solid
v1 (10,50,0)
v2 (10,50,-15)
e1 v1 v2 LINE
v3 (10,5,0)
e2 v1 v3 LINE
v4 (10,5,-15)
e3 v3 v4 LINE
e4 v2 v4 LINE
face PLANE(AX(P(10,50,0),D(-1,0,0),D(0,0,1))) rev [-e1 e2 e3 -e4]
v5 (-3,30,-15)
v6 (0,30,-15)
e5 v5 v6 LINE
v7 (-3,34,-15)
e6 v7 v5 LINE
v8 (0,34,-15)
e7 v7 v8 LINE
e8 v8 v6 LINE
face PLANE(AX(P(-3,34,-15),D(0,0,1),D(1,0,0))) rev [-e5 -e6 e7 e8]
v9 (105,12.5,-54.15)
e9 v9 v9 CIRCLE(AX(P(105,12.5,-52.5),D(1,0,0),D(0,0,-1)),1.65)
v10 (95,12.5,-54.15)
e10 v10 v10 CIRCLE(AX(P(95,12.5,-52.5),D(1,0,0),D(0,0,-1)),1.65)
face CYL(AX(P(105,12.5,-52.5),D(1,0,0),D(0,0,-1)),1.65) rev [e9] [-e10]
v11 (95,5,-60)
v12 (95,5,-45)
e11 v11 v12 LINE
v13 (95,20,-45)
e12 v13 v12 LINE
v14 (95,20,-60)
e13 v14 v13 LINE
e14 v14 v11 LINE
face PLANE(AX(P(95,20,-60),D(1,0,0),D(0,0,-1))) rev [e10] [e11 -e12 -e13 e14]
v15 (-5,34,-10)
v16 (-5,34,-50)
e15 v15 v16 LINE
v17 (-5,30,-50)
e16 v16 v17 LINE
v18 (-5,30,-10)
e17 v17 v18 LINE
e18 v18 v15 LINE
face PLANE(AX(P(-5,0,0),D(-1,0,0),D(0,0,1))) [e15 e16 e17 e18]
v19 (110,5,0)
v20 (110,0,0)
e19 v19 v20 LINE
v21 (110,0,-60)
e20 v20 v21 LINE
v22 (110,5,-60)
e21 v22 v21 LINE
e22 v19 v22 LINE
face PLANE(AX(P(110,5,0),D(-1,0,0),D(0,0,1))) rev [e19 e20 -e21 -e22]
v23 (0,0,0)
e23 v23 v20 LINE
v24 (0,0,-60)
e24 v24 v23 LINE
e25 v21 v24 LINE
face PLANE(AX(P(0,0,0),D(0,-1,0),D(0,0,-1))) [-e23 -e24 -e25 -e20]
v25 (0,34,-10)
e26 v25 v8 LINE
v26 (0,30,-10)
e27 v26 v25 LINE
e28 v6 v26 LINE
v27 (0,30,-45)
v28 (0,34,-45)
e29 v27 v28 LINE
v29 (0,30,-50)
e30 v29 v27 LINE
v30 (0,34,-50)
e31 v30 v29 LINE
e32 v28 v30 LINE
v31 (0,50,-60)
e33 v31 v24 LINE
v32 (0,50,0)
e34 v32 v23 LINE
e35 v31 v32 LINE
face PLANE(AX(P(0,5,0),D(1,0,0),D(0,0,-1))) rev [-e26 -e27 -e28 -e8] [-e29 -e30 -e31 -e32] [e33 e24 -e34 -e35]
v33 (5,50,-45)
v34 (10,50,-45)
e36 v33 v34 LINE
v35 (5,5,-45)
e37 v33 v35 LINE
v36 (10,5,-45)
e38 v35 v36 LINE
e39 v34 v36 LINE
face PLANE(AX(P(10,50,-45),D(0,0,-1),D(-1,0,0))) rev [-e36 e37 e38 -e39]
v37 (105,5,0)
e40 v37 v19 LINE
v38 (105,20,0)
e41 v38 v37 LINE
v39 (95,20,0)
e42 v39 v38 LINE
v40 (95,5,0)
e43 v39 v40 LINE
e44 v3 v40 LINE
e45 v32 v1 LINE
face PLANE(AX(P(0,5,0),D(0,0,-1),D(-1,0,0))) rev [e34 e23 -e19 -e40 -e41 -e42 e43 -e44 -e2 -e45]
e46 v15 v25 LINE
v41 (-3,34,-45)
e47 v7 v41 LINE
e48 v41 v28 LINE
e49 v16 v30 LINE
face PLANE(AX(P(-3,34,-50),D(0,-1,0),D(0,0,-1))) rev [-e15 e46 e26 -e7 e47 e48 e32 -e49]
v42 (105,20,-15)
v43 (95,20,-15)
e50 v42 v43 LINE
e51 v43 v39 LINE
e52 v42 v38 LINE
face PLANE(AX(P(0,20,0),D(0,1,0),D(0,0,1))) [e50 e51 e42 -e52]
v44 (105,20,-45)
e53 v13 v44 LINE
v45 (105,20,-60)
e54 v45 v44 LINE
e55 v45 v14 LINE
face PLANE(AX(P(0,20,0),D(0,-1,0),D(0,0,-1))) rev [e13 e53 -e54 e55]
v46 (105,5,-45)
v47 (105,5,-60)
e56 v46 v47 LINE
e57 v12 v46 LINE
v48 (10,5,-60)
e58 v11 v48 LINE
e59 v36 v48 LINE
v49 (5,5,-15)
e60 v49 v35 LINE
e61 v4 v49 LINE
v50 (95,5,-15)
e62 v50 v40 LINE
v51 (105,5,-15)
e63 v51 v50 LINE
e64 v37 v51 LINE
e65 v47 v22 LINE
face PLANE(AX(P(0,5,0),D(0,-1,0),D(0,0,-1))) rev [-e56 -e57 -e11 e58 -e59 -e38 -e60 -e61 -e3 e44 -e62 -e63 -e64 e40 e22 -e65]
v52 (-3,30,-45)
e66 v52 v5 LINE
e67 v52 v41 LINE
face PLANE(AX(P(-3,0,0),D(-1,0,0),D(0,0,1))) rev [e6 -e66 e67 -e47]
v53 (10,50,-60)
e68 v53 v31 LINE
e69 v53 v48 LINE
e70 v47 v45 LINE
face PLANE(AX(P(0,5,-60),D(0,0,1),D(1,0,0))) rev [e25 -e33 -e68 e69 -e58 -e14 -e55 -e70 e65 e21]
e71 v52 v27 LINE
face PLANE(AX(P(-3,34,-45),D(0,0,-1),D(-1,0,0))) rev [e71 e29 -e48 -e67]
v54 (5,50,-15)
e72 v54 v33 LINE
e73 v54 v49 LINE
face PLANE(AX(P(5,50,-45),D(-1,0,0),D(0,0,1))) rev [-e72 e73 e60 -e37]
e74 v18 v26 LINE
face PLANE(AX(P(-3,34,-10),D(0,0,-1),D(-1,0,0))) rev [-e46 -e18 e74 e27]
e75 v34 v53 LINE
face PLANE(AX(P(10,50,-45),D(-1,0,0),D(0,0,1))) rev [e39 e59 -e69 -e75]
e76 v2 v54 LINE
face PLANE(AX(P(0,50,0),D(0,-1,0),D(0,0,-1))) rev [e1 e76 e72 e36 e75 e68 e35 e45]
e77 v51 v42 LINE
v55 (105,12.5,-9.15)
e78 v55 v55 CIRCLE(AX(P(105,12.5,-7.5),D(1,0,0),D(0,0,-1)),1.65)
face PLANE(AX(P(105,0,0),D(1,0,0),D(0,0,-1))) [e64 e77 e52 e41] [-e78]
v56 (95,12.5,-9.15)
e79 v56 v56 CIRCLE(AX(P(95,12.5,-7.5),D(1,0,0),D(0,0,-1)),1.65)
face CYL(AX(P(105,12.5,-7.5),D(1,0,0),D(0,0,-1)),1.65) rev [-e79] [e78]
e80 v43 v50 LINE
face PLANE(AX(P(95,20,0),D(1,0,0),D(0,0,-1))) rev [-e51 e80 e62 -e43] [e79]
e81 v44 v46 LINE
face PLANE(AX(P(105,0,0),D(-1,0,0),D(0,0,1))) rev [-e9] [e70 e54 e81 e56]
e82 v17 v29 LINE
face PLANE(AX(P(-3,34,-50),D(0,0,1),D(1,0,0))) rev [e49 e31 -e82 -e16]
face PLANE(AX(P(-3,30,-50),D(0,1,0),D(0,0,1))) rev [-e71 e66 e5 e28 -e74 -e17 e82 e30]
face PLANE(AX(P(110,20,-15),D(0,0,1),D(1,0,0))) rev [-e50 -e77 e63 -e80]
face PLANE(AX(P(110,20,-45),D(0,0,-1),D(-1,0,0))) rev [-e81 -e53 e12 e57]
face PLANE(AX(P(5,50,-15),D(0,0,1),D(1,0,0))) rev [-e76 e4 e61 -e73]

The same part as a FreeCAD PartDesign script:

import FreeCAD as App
import Part
import Sketcher
from FreeCAD import Vector

doc = App.newDocument("Part")
params = doc.addObject("Spreadsheet::Sheet", "Params")
for row, (alias, value) in enumerate([
    ("sketch1_width", "110 mm"),
    ("sketch1_height", "60 mm"),
    ("pad1_length", "5 mm"),
    ("sketch2_width", "10 mm"),
    ("sketch2_width2", "5 mm"),
    ("sketch2_height", "15 mm"),
    ("sketch2_height2", "30 mm"),
    ("pad2_length", "45 mm"),
    ("sketch3_width", "15 mm"),
    ("pad3_length", "15 mm"),
    ("sketch4_width", "15 mm"),
    ("pocket1_length", "5 mm"),
    ("sketch5_diameter", "3.3 mm"),
    ("hole_diameter", "3.3 mm"),
    ("hole_depth", "14.00858 mm"),
    ("sketch6_width", "4 mm"),
    ("sketch6_height", "5 mm"),
    ("pad4_length", "3 mm"),
    ("sketch7_width", "4 mm"),
    ("sketch7_height", "40 mm"),
    ("pad5_length", "2 mm"),
], start=1):
    params.set(f"A{row}", alias)
    params.set(f"B{row}", "=" + value)
    params.setAlias(f"B{row}", alias)

body = doc.addObject("PartDesign::Body", "Body")

sketch1 = body.newObject("Sketcher::SketchObject", "Sketch")
sketch1.AttachmentSupport = (doc.getObject("XZ_Plane"), [""])
sketch1.MapMode = "FlatFace"
sketch1.addGeometry(Part.LineSegment(Vector(0, -60, 0), Vector(0, 0, 0)), False)
sketch1.addGeometry(Part.LineSegment(Vector(0, 0, 0), Vector(110, 0, 0)), False)
sketch1.addGeometry(Part.LineSegment(Vector(110, 0, 0), Vector(110, -60, 0)), False)
sketch1.addGeometry(Part.LineSegment(Vector(110, -60, 0), Vector(0, -60, 0)), False)
sketch1.addConstraint(Sketcher.Constraint("Coincident", 0, 2, 1, 1))
sketch1.addConstraint(Sketcher.Constraint("Coincident", 1, 2, 2, 1))
sketch1.addConstraint(Sketcher.Constraint("Coincident", 2, 2, 3, 1))
sketch1.addConstraint(Sketcher.Constraint("Coincident", 3, 2, 0, 1))
sketch1.addConstraint(Sketcher.Constraint("Vertical", 0))
sketch1.addConstraint(Sketcher.Constraint("Horizontal", 1))
sketch1.addConstraint(Sketcher.Constraint("Vertical", 2))
sketch1.addConstraint(Sketcher.Constraint("Horizontal", 3))
sketch1.addConstraint(Sketcher.Constraint("Coincident", 0, 2, -1, 1))
sketch1.addConstraint(Sketcher.Constraint("DistanceX", 1, 1, 1, 2, 110.0))
sketch1.addConstraint(Sketcher.Constraint("DistanceY", 0, 1, 0, 2, 60.0))
sketch1.setExpression("Constraints[9]", "Params.sketch1_width")
sketch1.setExpression("Constraints[10]", "Params.sketch1_height")
pad1 = body.newObject("PartDesign::Pad", "Pad")
pad1.Profile = sketch1
pad1.setExpression("Length", "Params.pad1_length")
pad1.Reversed = True

sketch2 = body.newObject("Sketcher::SketchObject", "Sketch001")
sketch2.AttachmentSupport = (doc.getObject("XZ_Plane"), [""])
sketch2.MapMode = "FlatFace"
sketch2.AttachmentOffset = App.Placement(Vector(0, 0, -5), App.Rotation())
sketch2.addGeometry(Part.LineSegment(Vector(0, 0, 0), Vector(10, 0, 0)), False)
sketch2.addGeometry(Part.LineSegment(Vector(10, 0, 0), Vector(10, -15, 0)), False)
sketch2.addGeometry(Part.LineSegment(Vector(10, -15, 0), Vector(5, -15, 0)), False)
sketch2.addGeometry(Part.LineSegment(Vector(5, -15, 0), Vector(5, -45, 0)), False)
sketch2.addGeometry(Part.LineSegment(Vector(5, -45, 0), Vector(10, -45, 0)), False)
sketch2.addGeometry(Part.LineSegment(Vector(10, -45, 0), Vector(10, -60, 0)), False)
sketch2.addGeometry(Part.LineSegment(Vector(10, -60, 0), Vector(0, -60, 0)), False)
sketch2.addGeometry(Part.LineSegment(Vector(0, -60, 0), Vector(0, 0, 0)), False)
sketch2.addConstraint(Sketcher.Constraint("Coincident", 0, 2, 1, 1))
sketch2.addConstraint(Sketcher.Constraint("Coincident", 1, 2, 2, 1))
sketch2.addConstraint(Sketcher.Constraint("Coincident", 2, 2, 3, 1))
sketch2.addConstraint(Sketcher.Constraint("Coincident", 3, 2, 4, 1))
sketch2.addConstraint(Sketcher.Constraint("Coincident", 4, 2, 5, 1))
sketch2.addConstraint(Sketcher.Constraint("Coincident", 5, 2, 6, 1))
sketch2.addConstraint(Sketcher.Constraint("Coincident", 6, 2, 7, 1))
sketch2.addConstraint(Sketcher.Constraint("Coincident", 7, 2, 0, 1))
sketch2.addConstraint(Sketcher.Constraint("Horizontal", 0))
sketch2.addConstraint(Sketcher.Constraint("Vertical", 1))
sketch2.addConstraint(Sketcher.Constraint("Horizontal", 2))
sketch2.addConstraint(Sketcher.Constraint("Vertical", 3))
sketch2.addConstraint(Sketcher.Constraint("Horizontal", 4))
sketch2.addConstraint(Sketcher.Constraint("Vertical", 5))
sketch2.addConstraint(Sketcher.Constraint("Horizontal", 6))
sketch2.addConstraint(Sketcher.Constraint("Vertical", 7))
sketch2.addConstraint(Sketcher.Constraint("Coincident", 7, 2, -1, 1))
sketch2.addConstraint(Sketcher.Constraint("Vertical", 1, 2, 4, 2))
sketch2.addConstraint(Sketcher.Constraint("Equal", 1, 5))
sketch2.addConstraint(Sketcher.Constraint("DistanceX", 0, 1, 0, 2, 10.0))
sketch2.addConstraint(Sketcher.Constraint("DistanceX", 2, 2, 2, 1, 5.0))
sketch2.addConstraint(Sketcher.Constraint("DistanceY", 1, 2, 1, 1, 15.0))
sketch2.addConstraint(Sketcher.Constraint("DistanceY", 3, 2, 3, 1, 30.0))
sketch2.setExpression("Constraints[19]", "Params.sketch2_width")
sketch2.setExpression("Constraints[20]", "Params.sketch2_width2")
sketch2.setExpression("Constraints[21]", "Params.sketch2_height")
sketch2.setExpression("Constraints[22]", "Params.sketch2_height2")
pad2 = body.newObject("PartDesign::Pad", "Pad001")
pad2.Profile = sketch2
pad2.setExpression("Length", "Params.pad2_length")
pad2.Reversed = True

sketch3 = body.newObject("Sketcher::SketchObject", "Sketch002")
sketch3.AttachmentSupport = (doc.getObject("XZ_Plane"), [""])
sketch3.MapMode = "FlatFace"
sketch3.AttachmentOffset = App.Placement(Vector(0, 0, -5), App.Rotation())
sketch3.addGeometry(Part.LineSegment(Vector(95, -60, 0), Vector(95, -45, 0)), False)
sketch3.addGeometry(Part.LineSegment(Vector(95, -45, 0), Vector(110, -45, 0)), False)
sketch3.addGeometry(Part.LineSegment(Vector(110, -45, 0), Vector(110, -60, 0)), False)
sketch3.addGeometry(Part.LineSegment(Vector(110, -60, 0), Vector(95, -60, 0)), False)
sketch3.addGeometry(Part.LineSegment(Vector(95, -15, 0), Vector(95, 0, 0)), False)
sketch3.addGeometry(Part.LineSegment(Vector(95, 0, 0), Vector(110, 0, 0)), False)
sketch3.addGeometry(Part.LineSegment(Vector(110, 0, 0), Vector(110, -15, 0)), False)
sketch3.addGeometry(Part.LineSegment(Vector(110, -15, 0), Vector(95, -15, 0)), False)
sketch3.addConstraint(Sketcher.Constraint("Coincident", 0, 2, 1, 1))
sketch3.addConstraint(Sketcher.Constraint("Coincident", 1, 2, 2, 1))
sketch3.addConstraint(Sketcher.Constraint("Coincident", 2, 2, 3, 1))
sketch3.addConstraint(Sketcher.Constraint("Coincident", 3, 2, 0, 1))
sketch3.addConstraint(Sketcher.Constraint("Coincident", 4, 2, 5, 1))
sketch3.addConstraint(Sketcher.Constraint("Coincident", 5, 2, 6, 1))
sketch3.addConstraint(Sketcher.Constraint("Coincident", 6, 2, 7, 1))
sketch3.addConstraint(Sketcher.Constraint("Coincident", 7, 2, 4, 1))
sketch3.addConstraint(Sketcher.Constraint("Vertical", 0))
sketch3.addConstraint(Sketcher.Constraint("Horizontal", 1))
sketch3.addConstraint(Sketcher.Constraint("Vertical", 2))
sketch3.addConstraint(Sketcher.Constraint("Horizontal", 3))
sketch3.addConstraint(Sketcher.Constraint("Vertical", 4))
sketch3.addConstraint(Sketcher.Constraint("Horizontal", 5))
sketch3.addConstraint(Sketcher.Constraint("Vertical", 6))
sketch3.addConstraint(Sketcher.Constraint("Horizontal", 7))
sketch3.addConstraint(Sketcher.Constraint("PointOnObject", 4, 2, -1))
sketch3.addConstraint(Sketcher.Constraint("Vertical", 3, 2, 4, 2))
sketch3.addConstraint(Sketcher.Constraint("Vertical", 2, 2, 5, 2))
sketch3.addConstraint(Sketcher.Constraint("Equal", 7, 0))
sketch3.addConstraint(Sketcher.Constraint("Equal", 2, 4))
sketch3.addConstraint(Sketcher.Constraint("DistanceX", 1, 1, 1, 2, 15.0))
sketch3.addConstraint(Sketcher.Constraint("DistanceX", -1, 1, 0, 2, 95.0))
sketch3.addConstraint(Sketcher.Constraint("DistanceY", 0, 2, -1, 1, 45.0))
sketch3.setExpression("Constraints[21]", "Params.sketch3_width")
pad3 = body.newObject("PartDesign::Pad", "Pad002")
pad3.Profile = sketch3
pad3.setExpression("Length", "Params.pad3_length")
pad3.Reversed = True

sketch4 = body.newObject("Sketcher::SketchObject", "Sketch003")
sketch4.AttachmentSupport = (doc.getObject("YZ_Plane"), [""])
sketch4.MapMode = "FlatFace"
sketch4.AttachmentOffset = App.Placement(Vector(0, 0, 110), App.Rotation())
sketch4.addGeometry(Part.LineSegment(Vector(20, 0, 0), Vector(5, 0, 0)), False)
sketch4.addGeometry(Part.LineSegment(Vector(5, 0, 0), Vector(5, -15, 0)), False)
sketch4.addGeometry(Part.LineSegment(Vector(5, -15, 0), Vector(20, -15, 0)), False)
sketch4.addGeometry(Part.LineSegment(Vector(20, -15, 0), Vector(20, 0, 0)), False)
sketch4.addGeometry(Part.LineSegment(Vector(20, -45, 0), Vector(5, -45, 0)), False)
sketch4.addGeometry(Part.LineSegment(Vector(5, -45, 0), Vector(5, -60, 0)), False)
sketch4.addGeometry(Part.LineSegment(Vector(5, -60, 0), Vector(20, -60, 0)), False)
sketch4.addGeometry(Part.LineSegment(Vector(20, -60, 0), Vector(20, -45, 0)), False)
sketch4.addConstraint(Sketcher.Constraint("Coincident", 0, 2, 1, 1))
sketch4.addConstraint(Sketcher.Constraint("Coincident", 1, 2, 2, 1))
sketch4.addConstraint(Sketcher.Constraint("Coincident", 2, 2, 3, 1))
sketch4.addConstraint(Sketcher.Constraint("Coincident", 3, 2, 0, 1))
sketch4.addConstraint(Sketcher.Constraint("Coincident", 4, 2, 5, 1))
sketch4.addConstraint(Sketcher.Constraint("Coincident", 5, 2, 6, 1))
sketch4.addConstraint(Sketcher.Constraint("Coincident", 6, 2, 7, 1))
sketch4.addConstraint(Sketcher.Constraint("Coincident", 7, 2, 4, 1))
sketch4.addConstraint(Sketcher.Constraint("Horizontal", 0))
sketch4.addConstraint(Sketcher.Constraint("Vertical", 1))
sketch4.addConstraint(Sketcher.Constraint("Horizontal", 2))
sketch4.addConstraint(Sketcher.Constraint("Vertical", 3))
sketch4.addConstraint(Sketcher.Constraint("Horizontal", 4))
sketch4.addConstraint(Sketcher.Constraint("Vertical", 5))
sketch4.addConstraint(Sketcher.Constraint("Horizontal", 6))
sketch4.addConstraint(Sketcher.Constraint("Vertical", 7))
sketch4.addConstraint(Sketcher.Constraint("PointOnObject", 0, 2, -1))
sketch4.addConstraint(Sketcher.Constraint("Vertical", 1, 2, 4, 2))
sketch4.addConstraint(Sketcher.Constraint("Vertical", 3, 2, 6, 2))
sketch4.addConstraint(Sketcher.Constraint("Equal", 6, 1))
sketch4.addConstraint(Sketcher.Constraint("Equal", 3, 5))
sketch4.addConstraint(Sketcher.Constraint("DistanceX", 0, 2, 0, 1, 15.0))
sketch4.addConstraint(Sketcher.Constraint("DistanceX", -1, 1, 0, 2, 5.0))
sketch4.addConstraint(Sketcher.Constraint("DistanceY", 4, 2, -1, 1, 45.0))
sketch4.setExpression("Constraints[21]", "Params.sketch4_width")
pocket1 = body.newObject("PartDesign::Pocket", "Pocket")
pocket1.Profile = sketch4
pocket1.setExpression("Length", "Params.pocket1_length")

sketch5 = body.newObject("Sketcher::SketchObject", "Sketch004")
sketch5.AttachmentSupport = (doc.getObject("YZ_Plane"), [""])
sketch5.MapMode = "FlatFace"
sketch5.AttachmentOffset = App.Placement(Vector(0, 0, 105), App.Rotation())
sketch5.addGeometry(Part.Circle(Vector(12.5, -7.5, 0), Vector(0, 0, 1), 1.6), False)
sketch5.addGeometry(Part.Circle(Vector(12.5, -52.5, 0), Vector(0, 0, 1), 1.6), False)
sketch5.addConstraint(Sketcher.Constraint("Equal", 0, 1))
sketch5.addConstraint(Sketcher.Constraint("Vertical", 0, 3, 1, 3))
sketch5.addConstraint(Sketcher.Constraint("Diameter", 0, 3.3))
sketch5.addConstraint(Sketcher.Constraint("DistanceY", 1, 3, 0, 3, 45.0))
sketch5.addConstraint(Sketcher.Constraint("DistanceX", -1, 1, 0, 3, 12.5))
sketch5.addConstraint(Sketcher.Constraint("DistanceY", 0, 3, -1, 1, 7.5))
sketch5.setExpression("Constraints[2]", "Params.sketch5_diameter")
doc.recompute()
hole = body.newObject("PartDesign::Hole", "Hole")
hole.Profile = sketch5
hole.ThreadType = "None"
hole.setExpression("Diameter", "Params.hole_diameter")
hole.DepthType = "Dimension"
hole.setExpression("Depth", "Params.hole_depth")
hole.DrillPoint = "Angled"
hole.DrillPointAngle = 118

sketch6 = body.newObject("Sketcher::SketchObject", "Sketch005")
sketch6.AttachmentSupport = (doc.getObject("YZ_Plane"), [""])
sketch6.MapMode = "FlatFace"
sketch6.addGeometry(Part.LineSegment(Vector(34, -50, 0), Vector(30, -50, 0)), False)
sketch6.addGeometry(Part.LineSegment(Vector(30, -50, 0), Vector(30, -45, 0)), False)
sketch6.addGeometry(Part.LineSegment(Vector(30, -45, 0), Vector(34, -45, 0)), False)
sketch6.addGeometry(Part.LineSegment(Vector(34, -45, 0), Vector(34, -50, 0)), False)
sketch6.addGeometry(Part.LineSegment(Vector(34, -15, 0), Vector(30, -15, 0)), False)
sketch6.addGeometry(Part.LineSegment(Vector(30, -15, 0), Vector(30, -10, 0)), False)
sketch6.addGeometry(Part.LineSegment(Vector(30, -10, 0), Vector(34, -10, 0)), False)
sketch6.addGeometry(Part.LineSegment(Vector(34, -10, 0), Vector(34, -15, 0)), False)
sketch6.addConstraint(Sketcher.Constraint("Coincident", 0, 2, 1, 1))
sketch6.addConstraint(Sketcher.Constraint("Coincident", 1, 2, 2, 1))
sketch6.addConstraint(Sketcher.Constraint("Coincident", 2, 2, 3, 1))
sketch6.addConstraint(Sketcher.Constraint("Coincident", 3, 2, 0, 1))
sketch6.addConstraint(Sketcher.Constraint("Coincident", 4, 2, 5, 1))
sketch6.addConstraint(Sketcher.Constraint("Coincident", 5, 2, 6, 1))
sketch6.addConstraint(Sketcher.Constraint("Coincident", 6, 2, 7, 1))
sketch6.addConstraint(Sketcher.Constraint("Coincident", 7, 2, 4, 1))
sketch6.addConstraint(Sketcher.Constraint("Horizontal", 0))
sketch6.addConstraint(Sketcher.Constraint("Vertical", 1))
sketch6.addConstraint(Sketcher.Constraint("Horizontal", 2))
sketch6.addConstraint(Sketcher.Constraint("Vertical", 3))
sketch6.addConstraint(Sketcher.Constraint("Horizontal", 4))
sketch6.addConstraint(Sketcher.Constraint("Vertical", 5))
sketch6.addConstraint(Sketcher.Constraint("Horizontal", 6))
sketch6.addConstraint(Sketcher.Constraint("Vertical", 7))
sketch6.addConstraint(Sketcher.Constraint("Vertical", 1, 2, 4, 2))
sketch6.addConstraint(Sketcher.Constraint("Vertical", 3, 2, 6, 2))
sketch6.addConstraint(Sketcher.Constraint("Equal", 3, 5))
sketch6.addConstraint(Sketcher.Constraint("DistanceX", 0, 2, 0, 1, 4.0))
sketch6.addConstraint(Sketcher.Constraint("DistanceY", 1, 1, 1, 2, 5.0))
sketch6.addConstraint(Sketcher.Constraint("DistanceX", -1, 1, 0, 2, 30.0))
sketch6.addConstraint(Sketcher.Constraint("DistanceY", 0, 2, -1, 1, 50.0))
sketch6.addConstraint(Sketcher.Constraint("DistanceY", 4, 2, -1, 1, 15.0))
sketch6.setExpression("Constraints[19]", "Params.sketch6_width")
sketch6.setExpression("Constraints[20]", "Params.sketch6_height")
pad4 = body.newObject("PartDesign::Pad", "Pad003")
pad4.Profile = sketch6
pad4.setExpression("Length", "Params.pad4_length")
pad4.Reversed = True

sketch7 = body.newObject("Sketcher::SketchObject", "Sketch006")
sketch7.AttachmentSupport = (doc.getObject("YZ_Plane"), [""])
sketch7.MapMode = "FlatFace"
sketch7.AttachmentOffset = App.Placement(Vector(0, 0, -3), App.Rotation())
sketch7.addGeometry(Part.LineSegment(Vector(34, -50, 0), Vector(30, -50, 0)), False)
sketch7.addGeometry(Part.LineSegment(Vector(30, -50, 0), Vector(30, -10, 0)), False)
sketch7.addGeometry(Part.LineSegment(Vector(30, -10, 0), Vector(34, -10, 0)), False)
sketch7.addGeometry(Part.LineSegment(Vector(34, -10, 0), Vector(34, -50, 0)), False)
sketch7.addConstraint(Sketcher.Constraint("Coincident", 0, 2, 1, 1))
sketch7.addConstraint(Sketcher.Constraint("Coincident", 1, 2, 2, 1))
sketch7.addConstraint(Sketcher.Constraint("Coincident", 2, 2, 3, 1))
sketch7.addConstraint(Sketcher.Constraint("Coincident", 3, 2, 0, 1))
sketch7.addConstraint(Sketcher.Constraint("Horizontal", 0))
sketch7.addConstraint(Sketcher.Constraint("Vertical", 1))
sketch7.addConstraint(Sketcher.Constraint("Horizontal", 2))
sketch7.addConstraint(Sketcher.Constraint("Vertical", 3))
sketch7.addConstraint(Sketcher.Constraint("DistanceX", 0, 2, 0, 1, 4.0))
sketch7.addConstraint(Sketcher.Constraint("DistanceY", 1, 1, 1, 2, 40.0))
sketch7.addConstraint(Sketcher.Constraint("DistanceX", -1, 1, 0, 2, 30.0))
sketch7.addConstraint(Sketcher.Constraint("DistanceY", 0, 2, -1, 1, 50.0))
sketch7.setExpression("Constraints[8]", "Params.sketch7_width")
sketch7.setExpression("Constraints[9]", "Params.sketch7_height")
pad5 = body.newObject("PartDesign::Pad", "Pad004")
pad5.Profile = sketch7
pad5.setExpression("Length", "Params.pad5_length")
pad5.Reversed = True

doc.recompute()
